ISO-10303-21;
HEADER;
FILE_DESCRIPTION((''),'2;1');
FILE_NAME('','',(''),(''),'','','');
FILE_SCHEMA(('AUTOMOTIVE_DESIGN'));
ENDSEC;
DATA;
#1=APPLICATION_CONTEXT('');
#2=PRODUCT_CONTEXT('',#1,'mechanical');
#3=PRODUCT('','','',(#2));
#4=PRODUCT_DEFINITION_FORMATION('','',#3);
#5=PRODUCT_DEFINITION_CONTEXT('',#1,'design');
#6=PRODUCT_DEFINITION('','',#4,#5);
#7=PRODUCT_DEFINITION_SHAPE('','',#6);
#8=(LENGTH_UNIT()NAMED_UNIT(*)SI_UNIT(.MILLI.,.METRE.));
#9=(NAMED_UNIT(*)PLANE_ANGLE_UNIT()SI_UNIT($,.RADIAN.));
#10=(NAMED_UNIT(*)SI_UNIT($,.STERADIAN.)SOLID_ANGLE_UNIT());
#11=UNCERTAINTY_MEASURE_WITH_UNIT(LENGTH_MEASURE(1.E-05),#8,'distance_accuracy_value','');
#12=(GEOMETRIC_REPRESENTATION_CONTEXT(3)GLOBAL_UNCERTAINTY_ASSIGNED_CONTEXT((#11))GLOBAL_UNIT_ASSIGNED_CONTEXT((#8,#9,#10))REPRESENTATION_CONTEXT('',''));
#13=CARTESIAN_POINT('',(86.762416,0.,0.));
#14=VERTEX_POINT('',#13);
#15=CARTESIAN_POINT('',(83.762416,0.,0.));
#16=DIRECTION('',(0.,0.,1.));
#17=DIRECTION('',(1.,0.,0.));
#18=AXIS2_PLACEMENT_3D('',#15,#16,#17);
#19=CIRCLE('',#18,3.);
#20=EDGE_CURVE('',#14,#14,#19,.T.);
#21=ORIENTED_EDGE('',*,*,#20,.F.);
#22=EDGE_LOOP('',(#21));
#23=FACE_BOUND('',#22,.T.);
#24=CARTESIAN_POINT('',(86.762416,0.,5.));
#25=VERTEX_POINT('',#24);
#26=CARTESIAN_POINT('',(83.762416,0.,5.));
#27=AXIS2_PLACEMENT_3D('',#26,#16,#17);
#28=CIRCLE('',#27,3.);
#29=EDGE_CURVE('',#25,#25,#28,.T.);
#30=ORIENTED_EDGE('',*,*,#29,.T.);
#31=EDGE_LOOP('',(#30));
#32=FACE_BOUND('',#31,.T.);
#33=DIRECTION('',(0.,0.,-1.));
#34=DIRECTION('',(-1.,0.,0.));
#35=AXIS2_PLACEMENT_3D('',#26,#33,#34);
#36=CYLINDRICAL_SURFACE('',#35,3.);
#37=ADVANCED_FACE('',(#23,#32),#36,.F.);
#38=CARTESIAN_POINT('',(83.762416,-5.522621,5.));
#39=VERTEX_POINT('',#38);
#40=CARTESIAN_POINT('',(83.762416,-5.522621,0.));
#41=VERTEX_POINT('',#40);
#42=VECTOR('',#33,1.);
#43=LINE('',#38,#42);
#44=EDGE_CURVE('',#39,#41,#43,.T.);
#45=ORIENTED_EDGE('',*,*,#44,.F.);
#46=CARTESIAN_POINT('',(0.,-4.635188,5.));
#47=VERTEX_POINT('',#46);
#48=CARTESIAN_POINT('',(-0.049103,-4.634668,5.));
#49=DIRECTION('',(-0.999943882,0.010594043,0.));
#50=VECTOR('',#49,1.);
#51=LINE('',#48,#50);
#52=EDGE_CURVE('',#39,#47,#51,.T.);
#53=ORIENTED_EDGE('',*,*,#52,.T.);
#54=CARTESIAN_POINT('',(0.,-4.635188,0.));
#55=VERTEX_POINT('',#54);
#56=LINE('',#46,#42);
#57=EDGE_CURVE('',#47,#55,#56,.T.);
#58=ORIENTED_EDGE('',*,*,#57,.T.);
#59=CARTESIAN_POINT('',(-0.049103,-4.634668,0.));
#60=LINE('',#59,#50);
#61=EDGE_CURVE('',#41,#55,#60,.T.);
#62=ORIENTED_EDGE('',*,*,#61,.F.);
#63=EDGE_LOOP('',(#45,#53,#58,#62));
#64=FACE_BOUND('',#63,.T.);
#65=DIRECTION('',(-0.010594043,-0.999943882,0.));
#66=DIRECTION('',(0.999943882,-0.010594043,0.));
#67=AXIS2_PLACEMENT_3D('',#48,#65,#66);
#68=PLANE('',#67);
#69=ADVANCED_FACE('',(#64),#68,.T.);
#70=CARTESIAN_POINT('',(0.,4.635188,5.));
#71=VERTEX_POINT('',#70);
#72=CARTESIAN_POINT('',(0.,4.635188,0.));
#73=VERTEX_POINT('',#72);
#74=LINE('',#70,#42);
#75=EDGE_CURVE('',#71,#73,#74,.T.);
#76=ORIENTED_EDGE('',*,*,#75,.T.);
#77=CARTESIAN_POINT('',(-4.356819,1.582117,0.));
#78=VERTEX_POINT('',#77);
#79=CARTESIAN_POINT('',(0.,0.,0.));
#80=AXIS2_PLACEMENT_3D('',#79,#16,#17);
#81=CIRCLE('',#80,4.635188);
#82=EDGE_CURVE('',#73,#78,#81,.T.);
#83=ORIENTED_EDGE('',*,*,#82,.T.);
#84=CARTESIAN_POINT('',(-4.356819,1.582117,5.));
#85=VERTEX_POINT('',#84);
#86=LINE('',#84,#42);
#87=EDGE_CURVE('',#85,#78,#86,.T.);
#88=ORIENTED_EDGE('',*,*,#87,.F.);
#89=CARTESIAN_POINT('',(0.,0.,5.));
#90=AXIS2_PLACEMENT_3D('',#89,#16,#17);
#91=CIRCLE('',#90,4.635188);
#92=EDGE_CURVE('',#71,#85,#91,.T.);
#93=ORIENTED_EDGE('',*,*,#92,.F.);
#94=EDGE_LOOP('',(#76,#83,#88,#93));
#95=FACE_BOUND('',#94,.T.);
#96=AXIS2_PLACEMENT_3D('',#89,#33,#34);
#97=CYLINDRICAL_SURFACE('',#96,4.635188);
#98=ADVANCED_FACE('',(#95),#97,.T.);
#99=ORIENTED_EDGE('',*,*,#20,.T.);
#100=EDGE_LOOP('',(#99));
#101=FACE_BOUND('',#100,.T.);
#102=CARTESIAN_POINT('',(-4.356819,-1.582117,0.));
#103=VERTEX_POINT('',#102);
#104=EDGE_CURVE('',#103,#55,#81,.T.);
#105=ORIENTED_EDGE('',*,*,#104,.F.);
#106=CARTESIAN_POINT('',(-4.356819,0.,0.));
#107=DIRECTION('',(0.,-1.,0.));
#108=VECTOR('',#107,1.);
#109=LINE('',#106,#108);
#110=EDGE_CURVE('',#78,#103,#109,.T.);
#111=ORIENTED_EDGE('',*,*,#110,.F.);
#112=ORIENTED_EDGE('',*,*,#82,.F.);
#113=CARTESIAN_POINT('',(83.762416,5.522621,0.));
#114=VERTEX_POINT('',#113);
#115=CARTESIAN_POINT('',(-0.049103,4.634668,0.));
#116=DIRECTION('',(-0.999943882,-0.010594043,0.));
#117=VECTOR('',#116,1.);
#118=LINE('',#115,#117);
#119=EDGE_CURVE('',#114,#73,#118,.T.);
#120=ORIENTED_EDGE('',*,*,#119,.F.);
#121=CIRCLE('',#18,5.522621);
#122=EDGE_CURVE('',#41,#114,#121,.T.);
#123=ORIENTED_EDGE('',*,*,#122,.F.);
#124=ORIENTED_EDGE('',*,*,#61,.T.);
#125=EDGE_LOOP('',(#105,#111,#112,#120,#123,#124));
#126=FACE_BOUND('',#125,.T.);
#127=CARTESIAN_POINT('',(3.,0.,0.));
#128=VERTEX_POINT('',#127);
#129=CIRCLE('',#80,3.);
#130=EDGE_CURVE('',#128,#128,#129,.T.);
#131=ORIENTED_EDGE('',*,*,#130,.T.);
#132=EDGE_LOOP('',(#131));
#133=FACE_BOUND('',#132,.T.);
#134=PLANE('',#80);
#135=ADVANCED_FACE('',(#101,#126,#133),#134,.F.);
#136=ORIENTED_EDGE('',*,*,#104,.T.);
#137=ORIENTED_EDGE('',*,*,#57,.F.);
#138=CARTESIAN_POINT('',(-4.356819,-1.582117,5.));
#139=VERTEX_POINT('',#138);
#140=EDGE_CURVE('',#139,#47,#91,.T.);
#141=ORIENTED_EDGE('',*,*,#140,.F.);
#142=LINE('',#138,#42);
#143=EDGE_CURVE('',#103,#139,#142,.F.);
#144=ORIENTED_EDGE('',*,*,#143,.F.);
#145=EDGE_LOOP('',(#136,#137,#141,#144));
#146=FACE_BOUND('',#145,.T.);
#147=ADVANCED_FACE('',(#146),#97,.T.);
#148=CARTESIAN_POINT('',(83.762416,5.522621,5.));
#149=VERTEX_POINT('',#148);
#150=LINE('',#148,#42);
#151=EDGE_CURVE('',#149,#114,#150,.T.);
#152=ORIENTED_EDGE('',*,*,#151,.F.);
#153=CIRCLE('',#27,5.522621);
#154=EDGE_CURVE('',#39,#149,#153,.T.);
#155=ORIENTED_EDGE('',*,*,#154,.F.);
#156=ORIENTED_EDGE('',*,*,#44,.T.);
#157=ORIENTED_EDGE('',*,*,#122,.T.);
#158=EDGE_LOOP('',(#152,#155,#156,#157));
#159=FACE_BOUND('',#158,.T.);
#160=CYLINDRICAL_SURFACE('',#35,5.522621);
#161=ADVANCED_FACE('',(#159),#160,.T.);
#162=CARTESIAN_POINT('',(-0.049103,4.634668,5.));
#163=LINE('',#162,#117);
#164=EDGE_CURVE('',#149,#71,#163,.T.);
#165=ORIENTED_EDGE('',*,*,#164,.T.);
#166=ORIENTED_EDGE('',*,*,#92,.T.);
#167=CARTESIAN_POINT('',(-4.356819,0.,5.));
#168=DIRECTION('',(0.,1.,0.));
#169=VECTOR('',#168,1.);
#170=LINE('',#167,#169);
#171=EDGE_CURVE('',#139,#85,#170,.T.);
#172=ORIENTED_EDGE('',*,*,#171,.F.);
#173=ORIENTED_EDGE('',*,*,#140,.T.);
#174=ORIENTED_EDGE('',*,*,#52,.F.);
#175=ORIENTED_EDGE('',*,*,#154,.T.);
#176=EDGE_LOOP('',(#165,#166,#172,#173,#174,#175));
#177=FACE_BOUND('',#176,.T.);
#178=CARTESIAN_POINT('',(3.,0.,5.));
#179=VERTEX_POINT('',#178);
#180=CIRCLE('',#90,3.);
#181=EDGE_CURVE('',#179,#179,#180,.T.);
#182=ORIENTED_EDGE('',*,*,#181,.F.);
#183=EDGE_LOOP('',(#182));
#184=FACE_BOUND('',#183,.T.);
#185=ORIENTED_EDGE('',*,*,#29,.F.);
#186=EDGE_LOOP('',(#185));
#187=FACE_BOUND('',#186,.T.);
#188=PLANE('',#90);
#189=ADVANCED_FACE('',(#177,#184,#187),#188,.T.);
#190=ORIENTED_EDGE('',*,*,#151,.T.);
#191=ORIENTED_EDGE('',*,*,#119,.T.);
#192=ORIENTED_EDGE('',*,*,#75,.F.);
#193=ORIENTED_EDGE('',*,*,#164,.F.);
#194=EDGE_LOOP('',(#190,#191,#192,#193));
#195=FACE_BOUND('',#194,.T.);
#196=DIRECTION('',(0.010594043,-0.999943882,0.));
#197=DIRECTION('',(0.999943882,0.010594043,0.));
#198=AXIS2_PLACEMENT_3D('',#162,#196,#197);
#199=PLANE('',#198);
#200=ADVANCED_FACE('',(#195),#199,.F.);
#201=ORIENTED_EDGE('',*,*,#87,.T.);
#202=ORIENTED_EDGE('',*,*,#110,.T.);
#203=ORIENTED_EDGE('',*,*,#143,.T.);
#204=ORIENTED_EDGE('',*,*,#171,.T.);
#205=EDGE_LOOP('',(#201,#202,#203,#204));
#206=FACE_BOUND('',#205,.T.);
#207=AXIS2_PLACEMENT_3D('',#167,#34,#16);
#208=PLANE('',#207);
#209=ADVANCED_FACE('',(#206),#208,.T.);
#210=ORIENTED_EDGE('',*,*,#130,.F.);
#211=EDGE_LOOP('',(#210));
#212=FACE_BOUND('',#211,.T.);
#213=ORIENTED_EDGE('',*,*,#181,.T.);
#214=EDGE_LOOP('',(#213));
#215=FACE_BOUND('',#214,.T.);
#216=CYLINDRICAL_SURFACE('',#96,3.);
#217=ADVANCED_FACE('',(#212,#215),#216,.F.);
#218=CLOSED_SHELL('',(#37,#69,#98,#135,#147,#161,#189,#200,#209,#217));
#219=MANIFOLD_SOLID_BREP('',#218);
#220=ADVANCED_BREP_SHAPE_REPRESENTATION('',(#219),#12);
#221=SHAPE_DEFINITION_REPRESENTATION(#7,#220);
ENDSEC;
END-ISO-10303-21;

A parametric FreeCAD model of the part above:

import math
import FreeCAD as App
import Part
import Sketcher

V = App.Vector

doc = App.newDocument("Part")
body = doc.addObject("PartDesign::Body", "Body")

# Sketch on XY plane
sketch1 = body.newObject("Sketcher::SketchObject", "Sketch")
sketch1.AttachmentSupport = (doc.getObject("XY_Plane"), [""])
sketch1.MapMode = "FlatFace"
sketch1.addGeometry([
    Part.ArcOfCircle(Part.Circle(V(0, 0, 0), V(0, 0, 1), 4.64), math.radians(90), math.radians(270)),  # 0
    Part.LineSegment(V(0, -4.64, 0), V(83.65, -5.52, 0)),  # 1
    Part.ArcOfCircle(Part.Circle(V(83.76, 0, 0), V(0, 0, 1), 5.52), math.radians(-91.21), math.radians(-90)),  # 2
    Part.ArcOfCircle(Part.Circle(V(83.76, 0, 0), V(0, 0, 1), 5.52), math.radians(-90), math.radians(91)),  # 3
    Part.LineSegment(V(83.65, 5.52, 0), V(0, 4.64, 0)),  # 4
    Part.Circle(V(0, 0, 0), V(0, 0, 1), 3),  # 5
    Part.Circle(V(83.76, 0, 0), V(0, 0, 1), 3),  # 6
], False)
sketch1.addConstraint([
    Sketcher.Constraint("Coincident", 0, 2, 1, 1),
    Sketcher.Constraint("Coincident", 1, 2, 2, 1),
    Sketcher.Constraint("Tangent", 2, 2, 3, 1),
    Sketcher.Constraint("Coincident", 3, 2, 4, 1),
    Sketcher.Constraint("Coincident", 4, 2, 0, 1),
    Sketcher.Constraint("Coincident", 0, 3, -1, 1),
    Sketcher.Constraint("Coincident", 5, 3, -1, 1),
    Sketcher.Constraint("Coincident", 6, 3, 2, 3),
    Sketcher.Constraint("Equal", 2, 3),
    Sketcher.Constraint("Equal", 5, 6),
    Sketcher.Constraint("Symmetric", 1, 2, 3, 2, -1),
    Sketcher.Constraint("PointOnObject", 0, 2, -2),
    Sketcher.Constraint("PointOnObject", 4, 2, -2),
    Sketcher.Constraint("Vertical", 6, 3, 2, 2),
    Sketcher.Constraint("Diameter", 5, 6.0),
    Sketcher.Constraint("Radius", 0, 4.635188),
    Sketcher.Constraint("Radius", 2, 5.522621),
    Sketcher.Constraint("DistanceY", 2, 2, 3, 2, 11.044002),
    Sketcher.Constraint("DistanceX", -1, 1, 1, 2, 83.645408),
])
pad1 = body.newObject("PartDesign::Pad", "Pad")
pad1.Profile = sketch1
pad1.Length = 5

# Sketch on XY plane
sketch2 = body.newObject("Sketcher::SketchObject", "Sketch001")
sketch2.AttachmentSupport = (doc.getObject("XY_Plane"), [""])
sketch2.MapMode = "FlatFace"
sketch2.addGeometry([
    Part.LineSegment(V(192.8, 4.1, 0), V(192.8, -3.4, 0)),  # 0
    Part.LineSegment(V(192.8, -3.4, 0), V(194.4, -3.4, 0)),  # 1
    Part.LineSegment(V(194.4, -3.4, 0), V(194.4, 4.1, 0)),  # 2
    Part.LineSegment(V(194.4, 4.1, 0), V(192.8, 4.1, 0)),  # 3
    Part.LineSegment(V(-5, 2.5, 0), V(-5, -2.6, 0)),  # 4
    Part.LineSegment(V(-5, -2.6, 0), V(-4.4, -2.6, 0)),  # 5
    Part.LineSegment(V(-4.4, -2.6, 0), V(-4.4, 2.5, 0)),  # 6
    Part.LineSegment(V(-4.4, 2.5, 0), V(-5, 2.5, 0)),  # 7
], False)
sketch2.addConstraint([
    Sketcher.Constraint("Coincident", 0, 2, 1, 1),
    Sketcher.Constraint("Coincident", 1, 2, 2, 1),
    Sketcher.Constraint("Coincident", 2, 2, 3, 1),
    Sketcher.Constraint("Coincident", 3, 2, 0, 1),
    Sketcher.Constraint("Coincident", 4, 2, 5, 1),
    Sketcher.Constraint("Coincident", 5, 2, 6, 1),
    Sketcher.Constraint("Coincident", 6, 2, 7, 1),
    Sketcher.Constraint("Coincident", 7, 2, 4, 1),
    Sketcher.Constraint("Vertical", 0),
    Sketcher.Constraint("Horizontal", 1),
    Sketcher.Constraint("Vertical", 2),
    Sketcher.Constraint("Horizontal", 3),
    Sketcher.Constraint("Vertical", 4),
    Sketcher.Constraint("Horizontal", 5),
    Sketcher.Constraint("Vertical", 6),
    Sketcher.Constraint("Horizontal", 7),
    Sketcher.Constraint("DistanceX", 1, 1, 1, 2, 1.618529),
    Sketcher.Constraint("DistanceX", 5, 1, 5, 2, 0.65183),
    Sketcher.Constraint("DistanceY", 0, 2, 0, 1, 7.505646),
    Sketcher.Constraint("DistanceY", 4, 2, 4, 1, 5.051684),
    Sketcher.Constraint("DistanceX", -1, 1, 0, 2, 192.829342),
    Sketcher.Constraint("DistanceX", 4, 2, -1, 1, 5.00865),
    Sketcher.Constraint("DistanceY", 4, 2, -1, 1, 2.564588),
    Sketcher.Constraint("DistanceY", 0, 2, 4, 2, 0.80695),
])
pocket1 = body.newObject("PartDesign::Pocket", "Pocket")
pocket1.Profile = sketch2
pocket1.Type = "ThroughAll"
pocket1.Reversed = True

doc.recompute()
